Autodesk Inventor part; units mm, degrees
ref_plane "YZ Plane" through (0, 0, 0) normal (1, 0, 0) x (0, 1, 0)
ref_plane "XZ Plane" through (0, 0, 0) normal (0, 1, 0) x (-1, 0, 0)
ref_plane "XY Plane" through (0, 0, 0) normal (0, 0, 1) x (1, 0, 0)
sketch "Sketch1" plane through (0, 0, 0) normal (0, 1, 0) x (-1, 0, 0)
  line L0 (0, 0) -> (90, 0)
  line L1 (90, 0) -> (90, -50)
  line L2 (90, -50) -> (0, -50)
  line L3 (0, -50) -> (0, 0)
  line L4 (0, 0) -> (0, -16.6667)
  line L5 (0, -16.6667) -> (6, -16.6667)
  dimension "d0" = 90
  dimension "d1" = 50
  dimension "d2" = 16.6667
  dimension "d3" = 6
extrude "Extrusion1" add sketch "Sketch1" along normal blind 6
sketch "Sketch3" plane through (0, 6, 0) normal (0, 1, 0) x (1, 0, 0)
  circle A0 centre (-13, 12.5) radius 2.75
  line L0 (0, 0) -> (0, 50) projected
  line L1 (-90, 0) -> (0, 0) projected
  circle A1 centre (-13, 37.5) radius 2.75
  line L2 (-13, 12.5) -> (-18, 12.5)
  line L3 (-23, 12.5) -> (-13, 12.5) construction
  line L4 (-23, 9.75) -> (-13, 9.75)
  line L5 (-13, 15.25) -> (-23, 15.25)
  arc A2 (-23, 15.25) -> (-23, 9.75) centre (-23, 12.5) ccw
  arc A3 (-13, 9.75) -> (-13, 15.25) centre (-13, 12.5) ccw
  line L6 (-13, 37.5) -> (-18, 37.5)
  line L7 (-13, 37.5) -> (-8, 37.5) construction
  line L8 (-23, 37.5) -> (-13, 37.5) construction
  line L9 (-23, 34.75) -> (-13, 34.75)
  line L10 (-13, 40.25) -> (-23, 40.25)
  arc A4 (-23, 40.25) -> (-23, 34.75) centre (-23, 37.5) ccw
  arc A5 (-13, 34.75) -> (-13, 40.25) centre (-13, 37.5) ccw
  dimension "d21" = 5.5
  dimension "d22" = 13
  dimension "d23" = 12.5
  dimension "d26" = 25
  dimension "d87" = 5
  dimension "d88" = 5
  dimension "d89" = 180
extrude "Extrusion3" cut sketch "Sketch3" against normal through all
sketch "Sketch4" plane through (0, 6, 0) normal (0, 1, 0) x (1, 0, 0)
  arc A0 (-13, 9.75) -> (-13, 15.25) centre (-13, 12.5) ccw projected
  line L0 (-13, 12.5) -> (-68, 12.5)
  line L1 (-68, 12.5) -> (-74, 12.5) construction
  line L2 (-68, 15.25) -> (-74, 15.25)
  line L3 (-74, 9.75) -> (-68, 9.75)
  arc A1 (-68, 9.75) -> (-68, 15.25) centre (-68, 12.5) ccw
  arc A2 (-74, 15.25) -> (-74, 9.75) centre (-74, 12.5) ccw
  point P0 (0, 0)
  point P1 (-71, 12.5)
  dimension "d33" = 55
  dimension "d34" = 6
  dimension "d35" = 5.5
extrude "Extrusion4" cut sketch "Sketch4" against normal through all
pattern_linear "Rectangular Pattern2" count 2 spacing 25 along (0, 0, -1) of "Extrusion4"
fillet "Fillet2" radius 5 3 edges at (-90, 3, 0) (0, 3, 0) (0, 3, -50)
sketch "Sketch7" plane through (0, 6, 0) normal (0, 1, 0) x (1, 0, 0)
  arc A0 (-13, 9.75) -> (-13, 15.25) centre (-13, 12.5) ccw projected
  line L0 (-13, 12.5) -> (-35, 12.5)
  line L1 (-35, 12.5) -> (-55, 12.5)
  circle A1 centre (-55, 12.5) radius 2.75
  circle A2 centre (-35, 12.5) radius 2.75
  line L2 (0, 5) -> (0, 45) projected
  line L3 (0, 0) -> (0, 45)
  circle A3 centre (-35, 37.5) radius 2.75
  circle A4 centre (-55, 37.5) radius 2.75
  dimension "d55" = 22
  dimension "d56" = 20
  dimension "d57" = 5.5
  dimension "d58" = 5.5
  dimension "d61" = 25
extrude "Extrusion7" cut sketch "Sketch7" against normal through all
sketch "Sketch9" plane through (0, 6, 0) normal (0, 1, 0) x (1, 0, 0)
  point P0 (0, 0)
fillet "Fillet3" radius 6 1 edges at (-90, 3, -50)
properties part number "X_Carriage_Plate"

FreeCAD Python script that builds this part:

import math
import FreeCAD as App
import Part
import Sketcher

V = App.Vector
Q = App.Units.Quantity


def edges_at(feature, points):
    """Names of the edges that pass closest to the given points."""
    edges = feature.Shape.Edges
    near = lambda p: min(range(len(edges)), key=lambda i: edges[i].distToShape(Part.Vertex(*p))[0])
    return sorted({f"Edge{near(p) + 1}" for p in points})

doc = App.newDocument("Part")
body = doc.addObject("PartDesign::Body", "Body")

# Sketch on XZ plane
sketch1 = doc.addObject("Sketcher::SketchObject", "Sketch")
body.addObject(sketch1)
sketch1.AttachmentSupport = (doc.XZ_Plane, [""])
sketch1.MapMode = "FlatFace"
sketch1.addGeometry(Part.LineSegment(V(-90, 0, 0), V(0, 0, 0)), False)
sketch1.addGeometry(Part.LineSegment(V(0, 0, 0), V(0, -50, 0)), False)
sketch1.addGeometry(Part.LineSegment(V(0, -50, 0), V(-90, -50, 0)), False)
sketch1.addGeometry(Part.LineSegment(V(-90, -50, 0), V(-90, 0, 0)), False)
sketch1.addConstraint(Sketcher.Constraint("Coincident", 0, 2, 1, 1))
sketch1.addConstraint(Sketcher.Constraint("Coincident", 1, 2, 2, 1))
sketch1.addConstraint(Sketcher.Constraint("Coincident", 2, 2, 3, 1))
sketch1.addConstraint(Sketcher.Constraint("Coincident", 3, 2, 0, 1))
sketch1.addConstraint(Sketcher.Constraint("Horizontal", 0))
sketch1.addConstraint(Sketcher.Constraint("Vertical", 1))
sketch1.addConstraint(Sketcher.Constraint("Horizontal", 2))
sketch1.addConstraint(Sketcher.Constraint("Vertical", 3))
sketch1.addConstraint(Sketcher.Constraint("Coincident", 0, 2, -1, 1))
sketch1.addConstraint(Sketcher.Constraint("DistanceX", 0, 1, 0, 2, Q("90 mm")))
sketch1.addConstraint(Sketcher.Constraint("DistanceY", 1, 2, 1, 1, Q("50 mm")))
pad1 = doc.addObject("PartDesign::Pad", "Pad")
body.addObject(pad1)
pad1.Profile = sketch1
pad1.Length = 6
pad1.Reversed = True

# Sketch on XZ plane
sketch2 = doc.addObject("Sketcher::SketchObject", "Sketch001")
body.addObject(sketch2)
sketch2.AttachmentSupport = (doc.XZ_Plane, [""])
sketch2.MapMode = "FlatFace"
sketch2.AttachmentOffset = App.Placement(V(0, 0, -6), App.Rotation())
sketch2.addGeometry(Part.ArcOfCircle(Part.Circle(V(-13, -12.5, 0), V(0, 0, 1), 2.75), math.radians(-90), math.radians(90)), False)
sketch2.addGeometry(Part.LineSegment(V(-13, -15.25, 0), V(-23, -15.25, 0)), False)
sketch2.addGeometry(Part.ArcOfCircle(Part.Circle(V(-23, -12.5, 0), V(0, 0, 1), 2.75), math.radians(90), math.radians(270)), False)
sketch2.addGeometry(Part.LineSegment(V(-23, -9.75, 0), V(-13, -9.75, 0)), False)
sketch2.addGeometry(Part.ArcOfCircle(Part.Circle(V(-13, -37.5, 0), V(0, 0, 1), 2.75), math.radians(-90), math.radians(90)), False)
sketch2.addGeometry(Part.LineSegment(V(-13, -40.25, 0), V(-23, -40.25, 0)), False)
sketch2.addGeometry(Part.ArcOfCircle(Part.Circle(V(-23, -37.5, 0), V(0, 0, 1), 2.75), math.radians(90), math.radians(270)), False)
sketch2.addGeometry(Part.LineSegment(V(-23, -34.75, 0), V(-13, -34.75, 0)), False)
sketch2.addConstraint(Sketcher.Constraint("Tangent", 0, 1, 1, 1))
sketch2.addConstraint(Sketcher.Constraint("Tangent", 1, 2, 2, 2))
sketch2.addConstraint(Sketcher.Constraint("Tangent", 2, 1, 3, 1))
sketch2.addConstraint(Sketcher.Constraint("Tangent", 3, 2, 0, 2))
sketch2.addConstraint(Sketcher.Constraint("Tangent", 4, 1, 5, 1))
sketch2.addConstraint(Sketcher.Constraint("Tangent", 5, 2, 6, 2))
sketch2.addConstraint(Sketcher.Constraint("Tangent", 6, 1, 7, 1))
sketch2.addConstraint(Sketcher.Constraint("Tangent", 7, 2, 4, 2))
sketch2.addConstraint(Sketcher.Constraint("Horizontal", 1))
sketch2.addConstraint(Sketcher.Constraint("Horizontal", 3))
sketch2.addConstraint(Sketcher.Constraint("Horizontal", 5))
sketch2.addConstraint(Sketcher.Constraint("Horizontal", 7))
sketch2.addConstraint(Sketcher.Constraint("Equal", 2, 4))
sketch2.addConstraint(Sketcher.Constraint("Vertical", 0, 3, 4, 3))
sketch2.addConstraint(Sketcher.Constraint("Vertical", 2, 3, 6, 3))
sketch2.addConstraint(Sketcher.Constraint("DistanceX", 1, 2, 1, 1, Q("10 mm")))
sketch2.addConstraint(Sketcher.Constraint("Radius", 0, Q("2.75 mm")))
sketch2.addConstraint(Sketcher.Constraint("DistanceX", 0, 3, -1, 1, Q("13 mm")))
sketch2.addConstraint(Sketcher.Constraint("DistanceY", 4, 3, 0, 3, Q("25 mm")))
sketch2.addConstraint(Sketcher.Constraint("DistanceY", 0, 3, -1, 1, Q("12.5 mm")))
pocket1 = doc.addObject("PartDesign::Pocket", "Pocket")
body.addObject(pocket1)
pocket1.Profile = sketch2
pocket1.Type = "ThroughAll"
pocket1.Reversed = True

# Sketch on XZ plane
sketch3 = doc.addObject("Sketcher::SketchObject", "Sketch002")
body.addObject(sketch3)
sketch3.AttachmentSupport = (doc.XZ_Plane, [""])
sketch3.MapMode = "FlatFace"
sketch3.AttachmentOffset = App.Placement(V(0, 0, -6), App.Rotation())
sketch3.addGeometry(Part.ArcOfCircle(Part.Circle(V(-68, -12.5, 0), V(0, 0, 1), 2.75), math.radians(-90), math.radians(90)), False)
sketch3.addGeometry(Part.LineSegment(V(-68, -15.25, 0), V(-74, -15.25, 0)), False)
sketch3.addGeometry(Part.ArcOfCircle(Part.Circle(V(-74, -12.5, 0), V(0, 0, 1), 2.75), math.radians(90), math.radians(270)), False)
sketch3.addGeometry(Part.LineSegment(V(-74, -9.75, 0), V(-68, -9.75, 0)), False)
sketch3.addConstraint(Sketcher.Constraint("Tangent", 0, 1, 1, 1))
sketch3.addConstraint(Sketcher.Constraint("Tangent", 1, 2, 2, 2))
sketch3.addConstraint(Sketcher.Constraint("Tangent", 2, 1, 3, 1))
sketch3.addConstraint(Sketcher.Constraint("Tangent", 3, 2, 0, 2))
sketch3.addConstraint(Sketcher.Constraint("Horizontal", 1))
sketch3.addConstraint(Sketcher.Constraint("Horizontal", 3))
sketch3.addConstraint(Sketcher.Constraint("DistanceX", 1, 2, 1, 1, Q("6 mm")))
sketch3.addConstraint(Sketcher.Constraint("Radius", 0, Q("2.75 mm")))
sketch3.addConstraint(Sketcher.Constraint("DistanceX", 0, 3, -1, 1, Q("68 mm")))
sketch3.addConstraint(Sketcher.Constraint("DistanceY", 0, 3, -1, 1, Q("12.5 mm")))
pocket2 = doc.addObject("PartDesign::Pocket", "Pocket001")
body.addObject(pocket2)
pocket2.Profile = sketch3
pocket2.Type = "ThroughAll"
pocket2.Reversed = True
doc.recompute()

linearpattern = doc.addObject("PartDesign::LinearPattern", "LinearPattern")
body.addObject(linearpattern)
linearpattern.Originals = [pocket2]
linearpattern.Direction = (doc.Z_Axis, [""])
linearpattern.Mode = "offset"
linearpattern.Offset = 25
linearpattern.Occurrences = 2
linearpattern.Reversed = True
body.Tip = linearpattern
doc.recompute()

fillet = doc.addObject("PartDesign::Fillet", "Fillet")
body.addObject(fillet)
fillet.Base = (linearpattern, edges_at(linearpattern, [(-90, 3, 0), (0, 3, 0), (0, 3, -50)]))
fillet.Radius = 5

# Sketch on XZ plane
sketch4 = doc.addObject("Sketcher::SketchObject", "Sketch003")
body.addObject(sketch4)
sketch4.AttachmentSupport = (doc.XZ_Plane, [""])
sketch4.MapMode = "FlatFace"
sketch4.AttachmentOffset = App.Placement(V(0, 0, -6), App.Rotation())
sketch4.addGeometry(Part.Circle(V(-35, -12.5, 0), V(0, 0, 1), 2.75), False)
sketch4.addGeometry(Part.Circle(V(-55, -12.5, 0), V(0, 0, 1), 2.75), False)
sketch4.addGeometry(Part.Circle(V(-35, -37.5, 0), V(0, 0, 1), 2.75), False)
sketch4.addGeometry(Part.Circle(V(-55, -37.5, 0), V(0, 0, 1), 2.75), False)
sketch4.addConstraint(Sketcher.Constraint("Equal", 0, 1))
sketch4.addConstraint(Sketcher.Constraint("Equal", 1, 2))
sketch4.addConstraint(Sketcher.Constraint("Equal", 2, 3))
sketch4.addConstraint(Sketcher.Constraint("Horizontal", 0, 3, 1, 3))
sketch4.addConstraint(Sketcher.Constraint("Horizontal", 2, 3, 3, 3))
sketch4.addConstraint(Sketcher.Constraint("Vertical", 0, 3, 2, 3))
sketch4.addConstraint(Sketcher.Constraint("Vertical", 1, 3, 3, 3))
sketch4.addConstraint(Sketcher.Constraint("Diameter", 0, Q("5.5 mm")))
sketch4.addConstraint(Sketcher.Constraint("DistanceX", 1, 3, 0, 3, Q("20 mm")))
sketch4.addConstraint(Sketcher.Constraint("DistanceY", 2, 3, 0, 3, Q("25 mm")))
sketch4.addConstraint(Sketcher.Constraint("DistanceX", 0, 3, -1, 1, Q("35 mm")))
sketch4.addConstraint(Sketcher.Constraint("DistanceY", 0, 3, -1, 1, Q("12.5 mm")))
pocket3 = doc.addObject("PartDesign::Pocket", "Pocket002")
body.addObject(pocket3)
pocket3.Profile = sketch4
pocket3.Type = "ThroughAll"
pocket3.Reversed = True
doc.recompute()

fillet2 = doc.addObject("PartDesign::Fillet", "Fillet001")
body.addObject(fillet2)
fillet2.Base = (pocket3, edges_at(pocket3, [(-90, 3, -50)]))
fillet2.Radius = 6

doc.recompute()
